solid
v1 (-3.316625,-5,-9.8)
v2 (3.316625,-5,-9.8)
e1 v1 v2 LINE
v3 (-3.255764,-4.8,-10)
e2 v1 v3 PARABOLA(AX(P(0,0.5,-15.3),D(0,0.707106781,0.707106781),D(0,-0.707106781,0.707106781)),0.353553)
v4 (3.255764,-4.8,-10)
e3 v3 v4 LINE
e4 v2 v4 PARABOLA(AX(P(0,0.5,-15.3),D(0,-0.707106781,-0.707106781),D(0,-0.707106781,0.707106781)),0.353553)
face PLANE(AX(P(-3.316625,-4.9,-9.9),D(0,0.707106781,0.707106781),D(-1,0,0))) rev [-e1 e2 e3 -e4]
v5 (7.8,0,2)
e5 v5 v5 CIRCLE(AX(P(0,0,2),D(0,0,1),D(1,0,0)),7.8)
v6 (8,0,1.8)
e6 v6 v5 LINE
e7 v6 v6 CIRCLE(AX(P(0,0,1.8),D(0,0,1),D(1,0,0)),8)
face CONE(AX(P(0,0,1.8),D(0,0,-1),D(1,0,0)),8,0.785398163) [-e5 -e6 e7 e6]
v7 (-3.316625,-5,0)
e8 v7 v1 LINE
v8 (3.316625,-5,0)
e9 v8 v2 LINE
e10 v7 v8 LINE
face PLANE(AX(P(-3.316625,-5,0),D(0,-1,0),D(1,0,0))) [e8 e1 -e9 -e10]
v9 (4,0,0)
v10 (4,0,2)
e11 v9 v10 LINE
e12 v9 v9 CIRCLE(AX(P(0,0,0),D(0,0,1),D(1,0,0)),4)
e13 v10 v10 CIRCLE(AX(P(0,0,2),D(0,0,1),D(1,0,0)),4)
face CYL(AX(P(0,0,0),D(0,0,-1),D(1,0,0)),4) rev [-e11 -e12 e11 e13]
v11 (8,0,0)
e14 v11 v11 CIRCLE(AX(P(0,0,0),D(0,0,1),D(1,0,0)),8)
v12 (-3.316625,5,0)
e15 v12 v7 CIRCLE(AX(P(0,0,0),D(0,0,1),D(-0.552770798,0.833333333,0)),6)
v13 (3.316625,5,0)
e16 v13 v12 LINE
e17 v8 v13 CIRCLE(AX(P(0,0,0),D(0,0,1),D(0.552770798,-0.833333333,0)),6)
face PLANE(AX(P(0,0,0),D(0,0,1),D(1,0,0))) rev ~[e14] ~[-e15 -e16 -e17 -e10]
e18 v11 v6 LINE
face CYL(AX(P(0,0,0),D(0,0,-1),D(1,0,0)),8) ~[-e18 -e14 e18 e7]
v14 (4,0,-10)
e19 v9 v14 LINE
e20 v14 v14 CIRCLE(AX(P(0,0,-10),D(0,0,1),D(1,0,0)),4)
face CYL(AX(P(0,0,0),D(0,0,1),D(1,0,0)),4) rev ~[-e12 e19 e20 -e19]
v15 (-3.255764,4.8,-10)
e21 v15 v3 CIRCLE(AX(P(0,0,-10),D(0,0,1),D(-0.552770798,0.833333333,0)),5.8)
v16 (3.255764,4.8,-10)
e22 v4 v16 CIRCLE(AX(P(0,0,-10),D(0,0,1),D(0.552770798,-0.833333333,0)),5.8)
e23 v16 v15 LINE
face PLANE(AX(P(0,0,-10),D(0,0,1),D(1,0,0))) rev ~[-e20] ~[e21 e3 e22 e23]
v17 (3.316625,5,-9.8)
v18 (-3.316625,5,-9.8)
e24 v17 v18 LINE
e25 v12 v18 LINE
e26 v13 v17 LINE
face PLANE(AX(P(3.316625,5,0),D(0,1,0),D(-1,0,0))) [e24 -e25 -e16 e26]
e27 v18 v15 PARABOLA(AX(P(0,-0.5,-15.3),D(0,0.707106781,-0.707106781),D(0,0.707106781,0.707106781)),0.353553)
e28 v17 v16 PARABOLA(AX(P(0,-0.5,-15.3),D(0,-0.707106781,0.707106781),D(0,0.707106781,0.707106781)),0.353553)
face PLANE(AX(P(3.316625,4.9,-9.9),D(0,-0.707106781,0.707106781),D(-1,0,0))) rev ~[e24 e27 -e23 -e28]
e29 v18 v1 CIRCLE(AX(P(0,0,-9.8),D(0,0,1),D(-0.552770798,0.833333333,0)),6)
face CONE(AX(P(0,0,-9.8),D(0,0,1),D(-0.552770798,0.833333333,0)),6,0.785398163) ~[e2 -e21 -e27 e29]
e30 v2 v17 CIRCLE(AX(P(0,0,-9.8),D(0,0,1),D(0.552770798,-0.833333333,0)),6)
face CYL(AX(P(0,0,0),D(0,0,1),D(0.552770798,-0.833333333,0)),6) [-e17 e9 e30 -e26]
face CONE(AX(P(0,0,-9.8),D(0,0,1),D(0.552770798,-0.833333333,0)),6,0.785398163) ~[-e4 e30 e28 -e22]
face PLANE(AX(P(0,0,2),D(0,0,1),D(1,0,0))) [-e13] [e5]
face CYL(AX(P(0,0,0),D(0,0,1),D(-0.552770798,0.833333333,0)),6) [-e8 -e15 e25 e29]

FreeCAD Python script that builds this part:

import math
import FreeCAD as App
import Part
import Sketcher

V = App.Vector


def edges_at(feature, points):
    """Names of the edges that pass closest to the given points."""
    edges = feature.Shape.Edges
    near = lambda p: min(range(len(edges)), key=lambda i: edges[i].distToShape(Part.Vertex(*p))[0])
    return sorted({f"Edge{near(p) + 1}" for p in points})

doc = App.newDocument("Part")
body = doc.addObject("PartDesign::Body", "Body")

sketch1 = body.newObject("Sketcher::SketchObject", "Sketch")
sketch1.AttachmentSupport = (doc.getObject("XY_Plane"), [""])
sketch1.MapMode = "FlatFace"
sketch1.addGeometry([
    Part.Circle(V(0, 0, 0), V(0, 0, 1), 8),
    Part.Circle(V(0, 0, 0), V(0, 0, 1), 4),
], False)
sketch1.addConstraint([
    Sketcher.Constraint("Coincident", 0, 3, -1, 1),
    Sketcher.Constraint("Coincident", 1, 3, -1, 1),
    Sketcher.Constraint("Diameter", 0, 16.0),
    Sketcher.Constraint("Diameter", 1, 8.0),
])
pad1 = body.newObject("PartDesign::Pad", "Pad")
pad1.Profile = sketch1
pad1.Length = 2

sketch2 = body.newObject("Sketcher::SketchObject", "Sketch001")
sketch2.AttachmentSupport = (doc.getObject("XY_Plane"), [""])
sketch2.MapMode = "FlatFace"
sketch2.addGeometry([
    Part.LineSegment(V(3.3, 5, 0), V(-3.3, 5, 0)),
    Part.ArcOfCircle(Part.Circle(V(0, 0, 0), V(0, 0, 1), 6), math.radians(124), math.radians(236)),
    Part.LineSegment(V(-3.3, -5, 0), V(3.3, -5, 0)),
    Part.ArcOfCircle(Part.Circle(V(0, 0, 0), V(0, 0, 1), 6), math.radians(-56), math.radians(56)),
    Part.Circle(V(0, 0, 0), V(0, 0, 1), 4),
], False)
sketch2.addConstraint([
    Sketcher.Constraint("Coincident", 0, 2, 1, 1),
    Sketcher.Constraint("Coincident", 1, 2, 2, 1),
    Sketcher.Constraint("Coincident", 2, 2, 3, 1),
    Sketcher.Constraint("Coincident", 3, 2, 0, 1),
    Sketcher.Constraint("Horizontal", 0),
    Sketcher.Constraint("Horizontal", 2),
    Sketcher.Constraint("Coincident", 1, 3, -1, 1),
    Sketcher.Constraint("Coincident", 3, 3, -1, 1),
    Sketcher.Constraint("Coincident", 4, 3, -1, 1),
    Sketcher.Constraint("Equal", 1, 3),
    Sketcher.Constraint("Vertical", 0, 2, 1, 2),
    Sketcher.Constraint("Diameter", 4, 8.0),
    Sketcher.Constraint("Radius", 1, 6.0),
    Sketcher.Constraint("DistanceY", -1, 1, 0, 2, 5.0),
])
pad2 = body.newObject("PartDesign::Pad", "Pad001")
pad2.Profile = sketch2
pad2.Length = 10
pad2.Reversed = True
doc.recompute()

chamfer = body.newObject("PartDesign::Chamfer", "Chamfer")
chamfer.Base = (pad2, edges_at(pad2, [
    (-8, 0, 2),
    (-6, 0, -10),
    (0, 5, -10),
    (6, 0, -10),
    (0, -5, -10),
]))
chamfer.Size = 0.2

doc.recompute()
